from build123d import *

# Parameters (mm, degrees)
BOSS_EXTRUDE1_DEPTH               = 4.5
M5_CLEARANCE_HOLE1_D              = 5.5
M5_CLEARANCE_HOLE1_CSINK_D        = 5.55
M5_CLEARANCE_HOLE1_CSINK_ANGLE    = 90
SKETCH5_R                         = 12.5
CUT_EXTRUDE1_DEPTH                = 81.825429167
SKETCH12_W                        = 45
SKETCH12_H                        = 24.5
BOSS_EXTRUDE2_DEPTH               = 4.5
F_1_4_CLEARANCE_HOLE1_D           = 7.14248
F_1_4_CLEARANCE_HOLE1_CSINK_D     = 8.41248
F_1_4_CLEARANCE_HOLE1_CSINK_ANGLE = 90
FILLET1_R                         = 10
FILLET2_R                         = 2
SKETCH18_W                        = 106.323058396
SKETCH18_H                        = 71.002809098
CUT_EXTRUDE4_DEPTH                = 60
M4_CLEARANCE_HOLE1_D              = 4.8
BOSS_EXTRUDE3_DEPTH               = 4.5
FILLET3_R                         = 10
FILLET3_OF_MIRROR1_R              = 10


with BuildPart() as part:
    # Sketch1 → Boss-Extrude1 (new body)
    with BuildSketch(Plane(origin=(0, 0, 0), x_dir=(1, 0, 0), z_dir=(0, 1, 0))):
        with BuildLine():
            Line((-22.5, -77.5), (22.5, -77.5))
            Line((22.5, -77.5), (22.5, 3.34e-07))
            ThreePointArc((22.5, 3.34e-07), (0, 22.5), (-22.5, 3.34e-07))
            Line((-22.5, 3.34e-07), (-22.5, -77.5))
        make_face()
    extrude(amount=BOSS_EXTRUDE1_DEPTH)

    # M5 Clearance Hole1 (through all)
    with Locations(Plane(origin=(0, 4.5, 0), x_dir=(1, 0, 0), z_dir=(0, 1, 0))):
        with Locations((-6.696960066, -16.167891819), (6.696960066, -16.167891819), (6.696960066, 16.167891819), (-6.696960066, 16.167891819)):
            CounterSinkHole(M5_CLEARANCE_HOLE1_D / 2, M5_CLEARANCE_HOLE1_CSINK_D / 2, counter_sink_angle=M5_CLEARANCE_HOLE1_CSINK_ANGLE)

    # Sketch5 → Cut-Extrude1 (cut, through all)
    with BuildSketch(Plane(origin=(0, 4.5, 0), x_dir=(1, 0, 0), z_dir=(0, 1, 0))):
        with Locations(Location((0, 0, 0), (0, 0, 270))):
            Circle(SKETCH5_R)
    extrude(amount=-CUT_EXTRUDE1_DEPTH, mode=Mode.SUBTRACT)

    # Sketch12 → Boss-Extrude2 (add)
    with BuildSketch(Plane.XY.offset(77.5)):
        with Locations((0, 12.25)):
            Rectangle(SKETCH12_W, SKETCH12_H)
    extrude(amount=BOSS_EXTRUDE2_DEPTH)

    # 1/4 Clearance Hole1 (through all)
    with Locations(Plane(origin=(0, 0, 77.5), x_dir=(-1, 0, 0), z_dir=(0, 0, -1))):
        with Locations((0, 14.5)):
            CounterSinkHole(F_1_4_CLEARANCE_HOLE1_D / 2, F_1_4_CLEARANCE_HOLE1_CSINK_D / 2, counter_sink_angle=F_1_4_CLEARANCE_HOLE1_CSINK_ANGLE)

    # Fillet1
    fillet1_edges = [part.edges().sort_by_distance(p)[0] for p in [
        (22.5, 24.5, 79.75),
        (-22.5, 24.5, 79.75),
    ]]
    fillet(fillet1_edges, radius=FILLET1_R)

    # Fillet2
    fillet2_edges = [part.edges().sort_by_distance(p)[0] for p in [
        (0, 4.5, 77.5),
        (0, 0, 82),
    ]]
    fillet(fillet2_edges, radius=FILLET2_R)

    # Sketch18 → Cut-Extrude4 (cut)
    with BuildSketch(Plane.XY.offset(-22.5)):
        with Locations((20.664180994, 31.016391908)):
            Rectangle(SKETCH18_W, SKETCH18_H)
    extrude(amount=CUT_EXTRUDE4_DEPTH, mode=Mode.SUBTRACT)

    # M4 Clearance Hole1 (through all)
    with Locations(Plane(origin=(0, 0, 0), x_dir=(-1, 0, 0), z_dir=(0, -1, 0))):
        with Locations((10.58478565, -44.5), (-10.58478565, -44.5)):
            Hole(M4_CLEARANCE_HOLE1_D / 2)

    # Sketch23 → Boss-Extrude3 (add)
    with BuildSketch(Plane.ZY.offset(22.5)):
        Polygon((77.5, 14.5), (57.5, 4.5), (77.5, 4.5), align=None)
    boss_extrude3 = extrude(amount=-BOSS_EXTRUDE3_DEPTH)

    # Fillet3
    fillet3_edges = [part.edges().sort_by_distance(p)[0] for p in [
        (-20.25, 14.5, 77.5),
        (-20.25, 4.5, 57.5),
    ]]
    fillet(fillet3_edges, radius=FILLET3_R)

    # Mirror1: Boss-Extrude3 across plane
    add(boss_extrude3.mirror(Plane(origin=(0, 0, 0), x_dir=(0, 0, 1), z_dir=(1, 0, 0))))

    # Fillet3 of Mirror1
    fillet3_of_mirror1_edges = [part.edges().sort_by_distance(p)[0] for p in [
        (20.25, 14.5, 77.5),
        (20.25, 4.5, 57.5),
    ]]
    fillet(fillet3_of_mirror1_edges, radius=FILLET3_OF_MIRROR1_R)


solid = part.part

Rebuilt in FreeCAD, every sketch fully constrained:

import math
import FreeCAD as App
import Part
import Sketcher

V = App.Vector
Q = App.Units.Quantity


def edges_at(feature, points):
    """Names of the edges that pass closest to the given points."""
    edges = feature.Shape.Edges
    near = lambda p: min(range(len(edges)), key=lambda i: edges[i].distToShape(Part.Vertex(*p))[0])
    return sorted({f"Edge{near(p) + 1}" for p in points})

doc = App.newDocument("Part")
body = doc.addObject("PartDesign::Body", "Body")

sketch1 = doc.addObject("Sketcher::SketchObject", "Sketch")
body.addObject(sketch1)
sketch1.AttachmentSupport = (doc.XZ_Plane, [""])
sketch1.MapMode = "FlatFace"
sketch1.addGeometry([
    Part.LineSegment(V(-22, 78, 0), V(22, 78, 0)),
    Part.LineSegment(V(22, 78, 0), V(22, 0, 0)),
    Part.ArcOfCircle(Part.Circle(V(0, 0, 0), V(0, 0, 1), 22), math.radians(-180), math.radians(0)),
    Part.LineSegment(V(-22, 0, 0), V(-22, 78, 0)),
], False)
sketch1.addConstraint([
    Sketcher.Constraint("Coincident", 0, 2, 1, 1),
    Sketcher.Constraint("Tangent", 1, 2, 2, 2),
    Sketcher.Constraint("Tangent", 2, 1, 3, 1),
    Sketcher.Constraint("Coincident", 3, 2, 0, 1),
    Sketcher.Constraint("Horizontal", 0),
    Sketcher.Constraint("Vertical", 1),
    Sketcher.Constraint("Vertical", 3),
    Sketcher.Constraint("Coincident", 2, 3, -1, 1),
    Sketcher.Constraint("Radius", 2, Q("22.5 mm")),
    Sketcher.Constraint("DistanceY", 1, 2, 1, 1, Q("77.5 mm")),
])
pad1 = doc.addObject("PartDesign::Pad", "Pad")
body.addObject(pad1)
pad1.Profile = sketch1
pad1.Length = 4.5
pad1.Reversed = True

sketch2 = doc.addObject("Sketcher::SketchObject", "Sketch001")
body.addObject(sketch2)
sketch2.AttachmentSupport = (doc.XZ_Plane, [""])
sketch2.MapMode = "FlatFace"
sketch2.AttachmentOffset = App.Placement(V(0, 0, -4.5), App.Rotation())
sketch2.addGeometry([
    Part.Circle(V(-6.7, 16.2, 0), V(0, 0, 1), 2.8),
    Part.Circle(V(6.7, 16.2, 0), V(0, 0, 1), 2.8),
    Part.Circle(V(6.7, -16.2, 0), V(0, 0, 1), 2.8),
    Part.Circle(V(-6.7, -16.2, 0), V(0, 0, 1), 2.8),
], False)
sketch2.addConstraint([
    Sketcher.Constraint("Equal", 0, 1),
    Sketcher.Constraint("Equal", 1, 2),
    Sketcher.Constraint("Equal", 2, 3),
    Sketcher.Constraint("Symmetric", 0, 3, 2, 3, -1, 1),
    Sketcher.Constraint("Symmetric", 1, 3, 3, 3, -1, 1),
    Sketcher.Constraint("Symmetric", 0, 3, 1, 3, -2),
    Sketcher.Constraint("Diameter", 0, Q("5.5 mm")),
    Sketcher.Constraint("DistanceX", 0, 3, -1, 1, Q("6.69696 mm")),
    Sketcher.Constraint("DistanceY", -1, 1, 0, 3, Q("16.167892 mm")),
])
doc.recompute()
hole = doc.addObject("PartDesign::Hole", "Hole")
body.addObject(hole)
hole.Profile = sketch2
hole.ThreadType = "None"
hole.Diameter = 5.5
hole.DepthType = "ThroughAll"
hole.HoleCutType = "Countersink"
hole.HoleCutDiameter = 5.55
hole.HoleCutCountersinkAngle = 90
hole.Reversed = True

sketch3 = doc.addObject("Sketcher::SketchObject", "Sketch002")
body.addObject(sketch3)
sketch3.AttachmentSupport = (doc.XZ_Plane, [""])
sketch3.MapMode = "FlatFace"
sketch3.AttachmentOffset = App.Placement(V(0, 0, -4.5), App.Rotation())
sketch3.addGeometry(Part.Circle(V(0, 0, 0), V(0, 0, 1), 12), False)
sketch3.addConstraint([
    Sketcher.Constraint("Coincident", 0, 3, -1, 1),
    Sketcher.Constraint("Diameter", 0, Q("25 mm")),
])
pocket1 = doc.addObject("PartDesign::Pocket", "Pocket")
body.addObject(pocket1)
pocket1.Profile = sketch3
pocket1.Type = "ThroughAll"
pocket1.Reversed = True

sketch4 = doc.addObject("Sketcher::SketchObject", "Sketch003")
body.addObject(sketch4)
sketch4.AttachmentSupport = (doc.XY_Plane, [""])
sketch4.MapMode = "FlatFace"
sketch4.AttachmentOffset = App.Placement(V(0, 0, 77.5), App.Rotation())
sketch4.addGeometry([
    Part.LineSegment(V(-22, 24, 0), V(-22, 0, 0)),
    Part.LineSegment(V(-22, 0, 0), V(22, 0, 0)),
    Part.LineSegment(V(22, 0, 0), V(22, 24, 0)),
    Part.LineSegment(V(22, 24, 0), V(-22, 24, 0)),
], False)
sketch4.addConstraint([
    Sketcher.Constraint("Coincident", 0, 2, 1, 1),
    Sketcher.Constraint("Coincident", 1, 2, 2, 1),
    Sketcher.Constraint("Coincident", 2, 2, 3, 1),
    Sketcher.Constraint("Coincident", 3, 2, 0, 1),
    Sketcher.Constraint("Vertical", 0),
    Sketcher.Constraint("Horizontal", 1),
    Sketcher.Constraint("Vertical", 2),
    Sketcher.Constraint("Horizontal", 3),
    Sketcher.Constraint("Symmetric", 0, 2, 1, 2, -1, 1),
    Sketcher.Constraint("DistanceX", 1, 1, 1, 2, Q("45 mm")),
    Sketcher.Constraint("DistanceY", 0, 2, 0, 1, Q("24.5 mm")),
])
pad2 = doc.addObject("PartDesign::Pad", "Pad001")
body.addObject(pad2)
pad2.Profile = sketch4
pad2.Length = 4.5

sketch5 = doc.addObject("Sketcher::SketchObject", "Sketch004")
body.addObject(sketch5)
sketch5.AttachmentSupport = (doc.XY_Plane, [""])
sketch5.MapMode = "FlatFace"
sketch5.AttachmentOffset = App.Placement(V(0, 0, 77.5), App.Rotation())
sketch5.addGeometry(Part.Circle(V(0, 14.5, 0), V(0, 0, 1), 3.6), False)
sketch5.addConstraint([
    Sketcher.Constraint("PointOnObject", 0, 3, -2),
    Sketcher.Constraint("DistanceY", -1, 1, 0, 3, Q("14.5 mm")),
    Sketcher.Constraint("Diameter", 0, Q("7.14248 mm")),
])
doc.recompute()
hole2 = doc.addObject("PartDesign::Hole", "Hole001")
body.addObject(hole2)
hole2.Profile = sketch5
hole2.ThreadType = "None"
hole2.Diameter = 7.14248
hole2.DepthType = "ThroughAll"
hole2.HoleCutType = "Countersink"
hole2.HoleCutDiameter = 8.41248
hole2.HoleCutCountersinkAngle = 90
hole2.Reversed = True
doc.recompute()

fillet = doc.addObject("PartDesign::Fillet", "Fillet")
body.addObject(fillet)
fillet.Base = (hole2, edges_at(hole2, [(22.5, 24.5, 79.75), (-22.5, 24.5, 79.75)]))
fillet.Radius = 10
doc.recompute()

fillet2 = doc.addObject("PartDesign::Fillet", "Fillet001")
body.addObject(fillet2)
fillet2.Base = (fillet, edges_at(fillet, [(0, 4.5, 77.5), (0, 0, 82)]))
fillet2.Radius = 2

sketch6 = doc.addObject("Sketcher::SketchObject", "Sketch005")
body.addObject(sketch6)
sketch6.AttachmentSupport = (doc.XY_Plane, [""])
sketch6.MapMode = "FlatFace"
sketch6.AttachmentOffset = App.Placement(V(0, 0, -22.5), App.Rotation())
sketch6.addGeometry([
    Part.LineSegment(V(-32, 67, 0), V(-32, -4, 0)),
    Part.LineSegment(V(-32, -4, 0), V(74, -4, 0)),
    Part.LineSegment(V(74, -4, 0), V(74, 67, 0)),
    Part.LineSegment(V(74, 67, 0), V(-32, 67, 0)),
], False)
sketch6.addConstraint([
    Sketcher.Constraint("Coincident", 0, 2, 1, 1),
    Sketcher.Constraint("Coincident", 1, 2, 2, 1),
    Sketcher.Constraint("Coincident", 2, 2, 3, 1),
    Sketcher.Constraint("Coincident", 3, 2, 0, 1),
    Sketcher.Constraint("Vertical", 0),
    Sketcher.Constraint("Horizontal", 1),
    Sketcher.Constraint("Vertical", 2),
    Sketcher.Constraint("Horizontal", 3),
    Sketcher.Constraint("DistanceX", 1, 1, 1, 2, Q("106.323058 mm")),
    Sketcher.Constraint("DistanceY", 0, 2, 0, 1, Q("71.002809 mm")),
    Sketcher.Constraint("DistanceX", 0, 2, -1, 1, Q("32.497348 mm")),
    Sketcher.Constraint("DistanceY", 0, 2, -1, 1, Q("4.485013 mm")),
])
pocket2 = doc.addObject("PartDesign::Pocket", "Pocket001")
body.addObject(pocket2)
pocket2.Profile = sketch6
pocket2.Length = 60
pocket2.Reversed = True

sketch7 = doc.addObject("Sketcher::SketchObject", "Sketch006")
body.addObject(sketch7)
sketch7.AttachmentSupport = (doc.XZ_Plane, [""])
sketch7.MapMode = "FlatFace"
sketch7.addGeometry([
    Part.Circle(V(-10.6, 44.5, 0), V(0, 0, 1), 2.4),
    Part.Circle(V(10.6, 44.5, 0), V(0, 0, 1), 2.4),
], False)
sketch7.addConstraint([
    Sketcher.Constraint("Equal", 0, 1),
    Sketcher.Constraint("Symmetric", 0, 3, 1, 3, -2),
    Sketcher.Constraint("Diameter", 0, Q("4.8 mm")),
    Sketcher.Constraint("DistanceY", -1, 1, 0, 3, Q("44.5 mm")),
    Sketcher.Constraint("DistanceX", 0, 3, 1, 3, Q("21.169571 mm")),
])
doc.recompute()
hole3 = doc.addObject("PartDesign::Hole", "Hole002")
body.addObject(hole3)
hole3.Profile = sketch7
hole3.ThreadType = "None"
hole3.Diameter = 4.8
hole3.DepthType = "ThroughAll"

sketch8 = doc.addObject("Sketcher::SketchObject", "Sketch007")
body.addObject(sketch8)
sketch8.AttachmentSupport = (doc.YZ_Plane, [""])
sketch8.MapMode = "FlatFace"
sketch8.AttachmentOffset = App.Placement(V(0, 0, -22.5), App.Rotation())
sketch8.addGeometry([
    Part.LineSegment(V(14, 78, 0), V(4, 58, 0)),
    Part.LineSegment(V(4, 58, 0), V(4, 78, 0)),
    Part.LineSegment(V(4, 78, 0), V(14, 78, 0)),
], False)
sketch8.addConstraint([
    Sketcher.Constraint("Coincident", 0, 2, 1, 1),
    Sketcher.Constraint("Coincident", 1, 2, 2, 1),
    Sketcher.Constraint("Coincident", 2, 2, 0, 1),
    Sketcher.Constraint("Vertical", 1),
    Sketcher.Constraint("Horizontal", 2),
    Sketcher.Constraint("DistanceX", 2, 1, 2, 2, Q("10 mm")),
    Sketcher.Constraint("DistanceY", 1, 1, 1, 2, Q("20 mm")),
    Sketcher.Constraint("DistanceX", -1, 1, 0, 2, Q("4.5 mm")),
    Sketcher.Constraint("DistanceY", -1, 1, 0, 2, Q("57.5 mm")),
])
pad3 = doc.addObject("PartDesign::Pad", "Pad002")
body.addObject(pad3)
pad3.Profile = sketch8
pad3.Length = 4.5
doc.recompute()

fillet3 = doc.addObject("PartDesign::Fillet", "Fillet002")
body.addObject(fillet3)
fillet3.Base = (pad3, edges_at(pad3, [(-20.25, 14.5, 77.5), (-20.25, 4.5, 57.5)]))
fillet3.Radius = 10
doc.recompute()

mirrored = doc.addObject("PartDesign::Mirrored", "Mirrored")
body.addObject(mirrored)
mirrored.Originals = [pad3]
mirrored.MirrorPlane = (doc.YZ_Plane, [""])
body.Tip = mirrored
doc.recompute()

fillet4 = doc.addObject("PartDesign::Fillet", "Fillet003")
body.addObject(fillet4)
fillet4.Base = (mirrored, edges_at(mirrored, [(20.25, 14.5, 77.5), (20.25, 4.5, 57.5)]))
fillet4.Radius = 10

doc.recompute()
